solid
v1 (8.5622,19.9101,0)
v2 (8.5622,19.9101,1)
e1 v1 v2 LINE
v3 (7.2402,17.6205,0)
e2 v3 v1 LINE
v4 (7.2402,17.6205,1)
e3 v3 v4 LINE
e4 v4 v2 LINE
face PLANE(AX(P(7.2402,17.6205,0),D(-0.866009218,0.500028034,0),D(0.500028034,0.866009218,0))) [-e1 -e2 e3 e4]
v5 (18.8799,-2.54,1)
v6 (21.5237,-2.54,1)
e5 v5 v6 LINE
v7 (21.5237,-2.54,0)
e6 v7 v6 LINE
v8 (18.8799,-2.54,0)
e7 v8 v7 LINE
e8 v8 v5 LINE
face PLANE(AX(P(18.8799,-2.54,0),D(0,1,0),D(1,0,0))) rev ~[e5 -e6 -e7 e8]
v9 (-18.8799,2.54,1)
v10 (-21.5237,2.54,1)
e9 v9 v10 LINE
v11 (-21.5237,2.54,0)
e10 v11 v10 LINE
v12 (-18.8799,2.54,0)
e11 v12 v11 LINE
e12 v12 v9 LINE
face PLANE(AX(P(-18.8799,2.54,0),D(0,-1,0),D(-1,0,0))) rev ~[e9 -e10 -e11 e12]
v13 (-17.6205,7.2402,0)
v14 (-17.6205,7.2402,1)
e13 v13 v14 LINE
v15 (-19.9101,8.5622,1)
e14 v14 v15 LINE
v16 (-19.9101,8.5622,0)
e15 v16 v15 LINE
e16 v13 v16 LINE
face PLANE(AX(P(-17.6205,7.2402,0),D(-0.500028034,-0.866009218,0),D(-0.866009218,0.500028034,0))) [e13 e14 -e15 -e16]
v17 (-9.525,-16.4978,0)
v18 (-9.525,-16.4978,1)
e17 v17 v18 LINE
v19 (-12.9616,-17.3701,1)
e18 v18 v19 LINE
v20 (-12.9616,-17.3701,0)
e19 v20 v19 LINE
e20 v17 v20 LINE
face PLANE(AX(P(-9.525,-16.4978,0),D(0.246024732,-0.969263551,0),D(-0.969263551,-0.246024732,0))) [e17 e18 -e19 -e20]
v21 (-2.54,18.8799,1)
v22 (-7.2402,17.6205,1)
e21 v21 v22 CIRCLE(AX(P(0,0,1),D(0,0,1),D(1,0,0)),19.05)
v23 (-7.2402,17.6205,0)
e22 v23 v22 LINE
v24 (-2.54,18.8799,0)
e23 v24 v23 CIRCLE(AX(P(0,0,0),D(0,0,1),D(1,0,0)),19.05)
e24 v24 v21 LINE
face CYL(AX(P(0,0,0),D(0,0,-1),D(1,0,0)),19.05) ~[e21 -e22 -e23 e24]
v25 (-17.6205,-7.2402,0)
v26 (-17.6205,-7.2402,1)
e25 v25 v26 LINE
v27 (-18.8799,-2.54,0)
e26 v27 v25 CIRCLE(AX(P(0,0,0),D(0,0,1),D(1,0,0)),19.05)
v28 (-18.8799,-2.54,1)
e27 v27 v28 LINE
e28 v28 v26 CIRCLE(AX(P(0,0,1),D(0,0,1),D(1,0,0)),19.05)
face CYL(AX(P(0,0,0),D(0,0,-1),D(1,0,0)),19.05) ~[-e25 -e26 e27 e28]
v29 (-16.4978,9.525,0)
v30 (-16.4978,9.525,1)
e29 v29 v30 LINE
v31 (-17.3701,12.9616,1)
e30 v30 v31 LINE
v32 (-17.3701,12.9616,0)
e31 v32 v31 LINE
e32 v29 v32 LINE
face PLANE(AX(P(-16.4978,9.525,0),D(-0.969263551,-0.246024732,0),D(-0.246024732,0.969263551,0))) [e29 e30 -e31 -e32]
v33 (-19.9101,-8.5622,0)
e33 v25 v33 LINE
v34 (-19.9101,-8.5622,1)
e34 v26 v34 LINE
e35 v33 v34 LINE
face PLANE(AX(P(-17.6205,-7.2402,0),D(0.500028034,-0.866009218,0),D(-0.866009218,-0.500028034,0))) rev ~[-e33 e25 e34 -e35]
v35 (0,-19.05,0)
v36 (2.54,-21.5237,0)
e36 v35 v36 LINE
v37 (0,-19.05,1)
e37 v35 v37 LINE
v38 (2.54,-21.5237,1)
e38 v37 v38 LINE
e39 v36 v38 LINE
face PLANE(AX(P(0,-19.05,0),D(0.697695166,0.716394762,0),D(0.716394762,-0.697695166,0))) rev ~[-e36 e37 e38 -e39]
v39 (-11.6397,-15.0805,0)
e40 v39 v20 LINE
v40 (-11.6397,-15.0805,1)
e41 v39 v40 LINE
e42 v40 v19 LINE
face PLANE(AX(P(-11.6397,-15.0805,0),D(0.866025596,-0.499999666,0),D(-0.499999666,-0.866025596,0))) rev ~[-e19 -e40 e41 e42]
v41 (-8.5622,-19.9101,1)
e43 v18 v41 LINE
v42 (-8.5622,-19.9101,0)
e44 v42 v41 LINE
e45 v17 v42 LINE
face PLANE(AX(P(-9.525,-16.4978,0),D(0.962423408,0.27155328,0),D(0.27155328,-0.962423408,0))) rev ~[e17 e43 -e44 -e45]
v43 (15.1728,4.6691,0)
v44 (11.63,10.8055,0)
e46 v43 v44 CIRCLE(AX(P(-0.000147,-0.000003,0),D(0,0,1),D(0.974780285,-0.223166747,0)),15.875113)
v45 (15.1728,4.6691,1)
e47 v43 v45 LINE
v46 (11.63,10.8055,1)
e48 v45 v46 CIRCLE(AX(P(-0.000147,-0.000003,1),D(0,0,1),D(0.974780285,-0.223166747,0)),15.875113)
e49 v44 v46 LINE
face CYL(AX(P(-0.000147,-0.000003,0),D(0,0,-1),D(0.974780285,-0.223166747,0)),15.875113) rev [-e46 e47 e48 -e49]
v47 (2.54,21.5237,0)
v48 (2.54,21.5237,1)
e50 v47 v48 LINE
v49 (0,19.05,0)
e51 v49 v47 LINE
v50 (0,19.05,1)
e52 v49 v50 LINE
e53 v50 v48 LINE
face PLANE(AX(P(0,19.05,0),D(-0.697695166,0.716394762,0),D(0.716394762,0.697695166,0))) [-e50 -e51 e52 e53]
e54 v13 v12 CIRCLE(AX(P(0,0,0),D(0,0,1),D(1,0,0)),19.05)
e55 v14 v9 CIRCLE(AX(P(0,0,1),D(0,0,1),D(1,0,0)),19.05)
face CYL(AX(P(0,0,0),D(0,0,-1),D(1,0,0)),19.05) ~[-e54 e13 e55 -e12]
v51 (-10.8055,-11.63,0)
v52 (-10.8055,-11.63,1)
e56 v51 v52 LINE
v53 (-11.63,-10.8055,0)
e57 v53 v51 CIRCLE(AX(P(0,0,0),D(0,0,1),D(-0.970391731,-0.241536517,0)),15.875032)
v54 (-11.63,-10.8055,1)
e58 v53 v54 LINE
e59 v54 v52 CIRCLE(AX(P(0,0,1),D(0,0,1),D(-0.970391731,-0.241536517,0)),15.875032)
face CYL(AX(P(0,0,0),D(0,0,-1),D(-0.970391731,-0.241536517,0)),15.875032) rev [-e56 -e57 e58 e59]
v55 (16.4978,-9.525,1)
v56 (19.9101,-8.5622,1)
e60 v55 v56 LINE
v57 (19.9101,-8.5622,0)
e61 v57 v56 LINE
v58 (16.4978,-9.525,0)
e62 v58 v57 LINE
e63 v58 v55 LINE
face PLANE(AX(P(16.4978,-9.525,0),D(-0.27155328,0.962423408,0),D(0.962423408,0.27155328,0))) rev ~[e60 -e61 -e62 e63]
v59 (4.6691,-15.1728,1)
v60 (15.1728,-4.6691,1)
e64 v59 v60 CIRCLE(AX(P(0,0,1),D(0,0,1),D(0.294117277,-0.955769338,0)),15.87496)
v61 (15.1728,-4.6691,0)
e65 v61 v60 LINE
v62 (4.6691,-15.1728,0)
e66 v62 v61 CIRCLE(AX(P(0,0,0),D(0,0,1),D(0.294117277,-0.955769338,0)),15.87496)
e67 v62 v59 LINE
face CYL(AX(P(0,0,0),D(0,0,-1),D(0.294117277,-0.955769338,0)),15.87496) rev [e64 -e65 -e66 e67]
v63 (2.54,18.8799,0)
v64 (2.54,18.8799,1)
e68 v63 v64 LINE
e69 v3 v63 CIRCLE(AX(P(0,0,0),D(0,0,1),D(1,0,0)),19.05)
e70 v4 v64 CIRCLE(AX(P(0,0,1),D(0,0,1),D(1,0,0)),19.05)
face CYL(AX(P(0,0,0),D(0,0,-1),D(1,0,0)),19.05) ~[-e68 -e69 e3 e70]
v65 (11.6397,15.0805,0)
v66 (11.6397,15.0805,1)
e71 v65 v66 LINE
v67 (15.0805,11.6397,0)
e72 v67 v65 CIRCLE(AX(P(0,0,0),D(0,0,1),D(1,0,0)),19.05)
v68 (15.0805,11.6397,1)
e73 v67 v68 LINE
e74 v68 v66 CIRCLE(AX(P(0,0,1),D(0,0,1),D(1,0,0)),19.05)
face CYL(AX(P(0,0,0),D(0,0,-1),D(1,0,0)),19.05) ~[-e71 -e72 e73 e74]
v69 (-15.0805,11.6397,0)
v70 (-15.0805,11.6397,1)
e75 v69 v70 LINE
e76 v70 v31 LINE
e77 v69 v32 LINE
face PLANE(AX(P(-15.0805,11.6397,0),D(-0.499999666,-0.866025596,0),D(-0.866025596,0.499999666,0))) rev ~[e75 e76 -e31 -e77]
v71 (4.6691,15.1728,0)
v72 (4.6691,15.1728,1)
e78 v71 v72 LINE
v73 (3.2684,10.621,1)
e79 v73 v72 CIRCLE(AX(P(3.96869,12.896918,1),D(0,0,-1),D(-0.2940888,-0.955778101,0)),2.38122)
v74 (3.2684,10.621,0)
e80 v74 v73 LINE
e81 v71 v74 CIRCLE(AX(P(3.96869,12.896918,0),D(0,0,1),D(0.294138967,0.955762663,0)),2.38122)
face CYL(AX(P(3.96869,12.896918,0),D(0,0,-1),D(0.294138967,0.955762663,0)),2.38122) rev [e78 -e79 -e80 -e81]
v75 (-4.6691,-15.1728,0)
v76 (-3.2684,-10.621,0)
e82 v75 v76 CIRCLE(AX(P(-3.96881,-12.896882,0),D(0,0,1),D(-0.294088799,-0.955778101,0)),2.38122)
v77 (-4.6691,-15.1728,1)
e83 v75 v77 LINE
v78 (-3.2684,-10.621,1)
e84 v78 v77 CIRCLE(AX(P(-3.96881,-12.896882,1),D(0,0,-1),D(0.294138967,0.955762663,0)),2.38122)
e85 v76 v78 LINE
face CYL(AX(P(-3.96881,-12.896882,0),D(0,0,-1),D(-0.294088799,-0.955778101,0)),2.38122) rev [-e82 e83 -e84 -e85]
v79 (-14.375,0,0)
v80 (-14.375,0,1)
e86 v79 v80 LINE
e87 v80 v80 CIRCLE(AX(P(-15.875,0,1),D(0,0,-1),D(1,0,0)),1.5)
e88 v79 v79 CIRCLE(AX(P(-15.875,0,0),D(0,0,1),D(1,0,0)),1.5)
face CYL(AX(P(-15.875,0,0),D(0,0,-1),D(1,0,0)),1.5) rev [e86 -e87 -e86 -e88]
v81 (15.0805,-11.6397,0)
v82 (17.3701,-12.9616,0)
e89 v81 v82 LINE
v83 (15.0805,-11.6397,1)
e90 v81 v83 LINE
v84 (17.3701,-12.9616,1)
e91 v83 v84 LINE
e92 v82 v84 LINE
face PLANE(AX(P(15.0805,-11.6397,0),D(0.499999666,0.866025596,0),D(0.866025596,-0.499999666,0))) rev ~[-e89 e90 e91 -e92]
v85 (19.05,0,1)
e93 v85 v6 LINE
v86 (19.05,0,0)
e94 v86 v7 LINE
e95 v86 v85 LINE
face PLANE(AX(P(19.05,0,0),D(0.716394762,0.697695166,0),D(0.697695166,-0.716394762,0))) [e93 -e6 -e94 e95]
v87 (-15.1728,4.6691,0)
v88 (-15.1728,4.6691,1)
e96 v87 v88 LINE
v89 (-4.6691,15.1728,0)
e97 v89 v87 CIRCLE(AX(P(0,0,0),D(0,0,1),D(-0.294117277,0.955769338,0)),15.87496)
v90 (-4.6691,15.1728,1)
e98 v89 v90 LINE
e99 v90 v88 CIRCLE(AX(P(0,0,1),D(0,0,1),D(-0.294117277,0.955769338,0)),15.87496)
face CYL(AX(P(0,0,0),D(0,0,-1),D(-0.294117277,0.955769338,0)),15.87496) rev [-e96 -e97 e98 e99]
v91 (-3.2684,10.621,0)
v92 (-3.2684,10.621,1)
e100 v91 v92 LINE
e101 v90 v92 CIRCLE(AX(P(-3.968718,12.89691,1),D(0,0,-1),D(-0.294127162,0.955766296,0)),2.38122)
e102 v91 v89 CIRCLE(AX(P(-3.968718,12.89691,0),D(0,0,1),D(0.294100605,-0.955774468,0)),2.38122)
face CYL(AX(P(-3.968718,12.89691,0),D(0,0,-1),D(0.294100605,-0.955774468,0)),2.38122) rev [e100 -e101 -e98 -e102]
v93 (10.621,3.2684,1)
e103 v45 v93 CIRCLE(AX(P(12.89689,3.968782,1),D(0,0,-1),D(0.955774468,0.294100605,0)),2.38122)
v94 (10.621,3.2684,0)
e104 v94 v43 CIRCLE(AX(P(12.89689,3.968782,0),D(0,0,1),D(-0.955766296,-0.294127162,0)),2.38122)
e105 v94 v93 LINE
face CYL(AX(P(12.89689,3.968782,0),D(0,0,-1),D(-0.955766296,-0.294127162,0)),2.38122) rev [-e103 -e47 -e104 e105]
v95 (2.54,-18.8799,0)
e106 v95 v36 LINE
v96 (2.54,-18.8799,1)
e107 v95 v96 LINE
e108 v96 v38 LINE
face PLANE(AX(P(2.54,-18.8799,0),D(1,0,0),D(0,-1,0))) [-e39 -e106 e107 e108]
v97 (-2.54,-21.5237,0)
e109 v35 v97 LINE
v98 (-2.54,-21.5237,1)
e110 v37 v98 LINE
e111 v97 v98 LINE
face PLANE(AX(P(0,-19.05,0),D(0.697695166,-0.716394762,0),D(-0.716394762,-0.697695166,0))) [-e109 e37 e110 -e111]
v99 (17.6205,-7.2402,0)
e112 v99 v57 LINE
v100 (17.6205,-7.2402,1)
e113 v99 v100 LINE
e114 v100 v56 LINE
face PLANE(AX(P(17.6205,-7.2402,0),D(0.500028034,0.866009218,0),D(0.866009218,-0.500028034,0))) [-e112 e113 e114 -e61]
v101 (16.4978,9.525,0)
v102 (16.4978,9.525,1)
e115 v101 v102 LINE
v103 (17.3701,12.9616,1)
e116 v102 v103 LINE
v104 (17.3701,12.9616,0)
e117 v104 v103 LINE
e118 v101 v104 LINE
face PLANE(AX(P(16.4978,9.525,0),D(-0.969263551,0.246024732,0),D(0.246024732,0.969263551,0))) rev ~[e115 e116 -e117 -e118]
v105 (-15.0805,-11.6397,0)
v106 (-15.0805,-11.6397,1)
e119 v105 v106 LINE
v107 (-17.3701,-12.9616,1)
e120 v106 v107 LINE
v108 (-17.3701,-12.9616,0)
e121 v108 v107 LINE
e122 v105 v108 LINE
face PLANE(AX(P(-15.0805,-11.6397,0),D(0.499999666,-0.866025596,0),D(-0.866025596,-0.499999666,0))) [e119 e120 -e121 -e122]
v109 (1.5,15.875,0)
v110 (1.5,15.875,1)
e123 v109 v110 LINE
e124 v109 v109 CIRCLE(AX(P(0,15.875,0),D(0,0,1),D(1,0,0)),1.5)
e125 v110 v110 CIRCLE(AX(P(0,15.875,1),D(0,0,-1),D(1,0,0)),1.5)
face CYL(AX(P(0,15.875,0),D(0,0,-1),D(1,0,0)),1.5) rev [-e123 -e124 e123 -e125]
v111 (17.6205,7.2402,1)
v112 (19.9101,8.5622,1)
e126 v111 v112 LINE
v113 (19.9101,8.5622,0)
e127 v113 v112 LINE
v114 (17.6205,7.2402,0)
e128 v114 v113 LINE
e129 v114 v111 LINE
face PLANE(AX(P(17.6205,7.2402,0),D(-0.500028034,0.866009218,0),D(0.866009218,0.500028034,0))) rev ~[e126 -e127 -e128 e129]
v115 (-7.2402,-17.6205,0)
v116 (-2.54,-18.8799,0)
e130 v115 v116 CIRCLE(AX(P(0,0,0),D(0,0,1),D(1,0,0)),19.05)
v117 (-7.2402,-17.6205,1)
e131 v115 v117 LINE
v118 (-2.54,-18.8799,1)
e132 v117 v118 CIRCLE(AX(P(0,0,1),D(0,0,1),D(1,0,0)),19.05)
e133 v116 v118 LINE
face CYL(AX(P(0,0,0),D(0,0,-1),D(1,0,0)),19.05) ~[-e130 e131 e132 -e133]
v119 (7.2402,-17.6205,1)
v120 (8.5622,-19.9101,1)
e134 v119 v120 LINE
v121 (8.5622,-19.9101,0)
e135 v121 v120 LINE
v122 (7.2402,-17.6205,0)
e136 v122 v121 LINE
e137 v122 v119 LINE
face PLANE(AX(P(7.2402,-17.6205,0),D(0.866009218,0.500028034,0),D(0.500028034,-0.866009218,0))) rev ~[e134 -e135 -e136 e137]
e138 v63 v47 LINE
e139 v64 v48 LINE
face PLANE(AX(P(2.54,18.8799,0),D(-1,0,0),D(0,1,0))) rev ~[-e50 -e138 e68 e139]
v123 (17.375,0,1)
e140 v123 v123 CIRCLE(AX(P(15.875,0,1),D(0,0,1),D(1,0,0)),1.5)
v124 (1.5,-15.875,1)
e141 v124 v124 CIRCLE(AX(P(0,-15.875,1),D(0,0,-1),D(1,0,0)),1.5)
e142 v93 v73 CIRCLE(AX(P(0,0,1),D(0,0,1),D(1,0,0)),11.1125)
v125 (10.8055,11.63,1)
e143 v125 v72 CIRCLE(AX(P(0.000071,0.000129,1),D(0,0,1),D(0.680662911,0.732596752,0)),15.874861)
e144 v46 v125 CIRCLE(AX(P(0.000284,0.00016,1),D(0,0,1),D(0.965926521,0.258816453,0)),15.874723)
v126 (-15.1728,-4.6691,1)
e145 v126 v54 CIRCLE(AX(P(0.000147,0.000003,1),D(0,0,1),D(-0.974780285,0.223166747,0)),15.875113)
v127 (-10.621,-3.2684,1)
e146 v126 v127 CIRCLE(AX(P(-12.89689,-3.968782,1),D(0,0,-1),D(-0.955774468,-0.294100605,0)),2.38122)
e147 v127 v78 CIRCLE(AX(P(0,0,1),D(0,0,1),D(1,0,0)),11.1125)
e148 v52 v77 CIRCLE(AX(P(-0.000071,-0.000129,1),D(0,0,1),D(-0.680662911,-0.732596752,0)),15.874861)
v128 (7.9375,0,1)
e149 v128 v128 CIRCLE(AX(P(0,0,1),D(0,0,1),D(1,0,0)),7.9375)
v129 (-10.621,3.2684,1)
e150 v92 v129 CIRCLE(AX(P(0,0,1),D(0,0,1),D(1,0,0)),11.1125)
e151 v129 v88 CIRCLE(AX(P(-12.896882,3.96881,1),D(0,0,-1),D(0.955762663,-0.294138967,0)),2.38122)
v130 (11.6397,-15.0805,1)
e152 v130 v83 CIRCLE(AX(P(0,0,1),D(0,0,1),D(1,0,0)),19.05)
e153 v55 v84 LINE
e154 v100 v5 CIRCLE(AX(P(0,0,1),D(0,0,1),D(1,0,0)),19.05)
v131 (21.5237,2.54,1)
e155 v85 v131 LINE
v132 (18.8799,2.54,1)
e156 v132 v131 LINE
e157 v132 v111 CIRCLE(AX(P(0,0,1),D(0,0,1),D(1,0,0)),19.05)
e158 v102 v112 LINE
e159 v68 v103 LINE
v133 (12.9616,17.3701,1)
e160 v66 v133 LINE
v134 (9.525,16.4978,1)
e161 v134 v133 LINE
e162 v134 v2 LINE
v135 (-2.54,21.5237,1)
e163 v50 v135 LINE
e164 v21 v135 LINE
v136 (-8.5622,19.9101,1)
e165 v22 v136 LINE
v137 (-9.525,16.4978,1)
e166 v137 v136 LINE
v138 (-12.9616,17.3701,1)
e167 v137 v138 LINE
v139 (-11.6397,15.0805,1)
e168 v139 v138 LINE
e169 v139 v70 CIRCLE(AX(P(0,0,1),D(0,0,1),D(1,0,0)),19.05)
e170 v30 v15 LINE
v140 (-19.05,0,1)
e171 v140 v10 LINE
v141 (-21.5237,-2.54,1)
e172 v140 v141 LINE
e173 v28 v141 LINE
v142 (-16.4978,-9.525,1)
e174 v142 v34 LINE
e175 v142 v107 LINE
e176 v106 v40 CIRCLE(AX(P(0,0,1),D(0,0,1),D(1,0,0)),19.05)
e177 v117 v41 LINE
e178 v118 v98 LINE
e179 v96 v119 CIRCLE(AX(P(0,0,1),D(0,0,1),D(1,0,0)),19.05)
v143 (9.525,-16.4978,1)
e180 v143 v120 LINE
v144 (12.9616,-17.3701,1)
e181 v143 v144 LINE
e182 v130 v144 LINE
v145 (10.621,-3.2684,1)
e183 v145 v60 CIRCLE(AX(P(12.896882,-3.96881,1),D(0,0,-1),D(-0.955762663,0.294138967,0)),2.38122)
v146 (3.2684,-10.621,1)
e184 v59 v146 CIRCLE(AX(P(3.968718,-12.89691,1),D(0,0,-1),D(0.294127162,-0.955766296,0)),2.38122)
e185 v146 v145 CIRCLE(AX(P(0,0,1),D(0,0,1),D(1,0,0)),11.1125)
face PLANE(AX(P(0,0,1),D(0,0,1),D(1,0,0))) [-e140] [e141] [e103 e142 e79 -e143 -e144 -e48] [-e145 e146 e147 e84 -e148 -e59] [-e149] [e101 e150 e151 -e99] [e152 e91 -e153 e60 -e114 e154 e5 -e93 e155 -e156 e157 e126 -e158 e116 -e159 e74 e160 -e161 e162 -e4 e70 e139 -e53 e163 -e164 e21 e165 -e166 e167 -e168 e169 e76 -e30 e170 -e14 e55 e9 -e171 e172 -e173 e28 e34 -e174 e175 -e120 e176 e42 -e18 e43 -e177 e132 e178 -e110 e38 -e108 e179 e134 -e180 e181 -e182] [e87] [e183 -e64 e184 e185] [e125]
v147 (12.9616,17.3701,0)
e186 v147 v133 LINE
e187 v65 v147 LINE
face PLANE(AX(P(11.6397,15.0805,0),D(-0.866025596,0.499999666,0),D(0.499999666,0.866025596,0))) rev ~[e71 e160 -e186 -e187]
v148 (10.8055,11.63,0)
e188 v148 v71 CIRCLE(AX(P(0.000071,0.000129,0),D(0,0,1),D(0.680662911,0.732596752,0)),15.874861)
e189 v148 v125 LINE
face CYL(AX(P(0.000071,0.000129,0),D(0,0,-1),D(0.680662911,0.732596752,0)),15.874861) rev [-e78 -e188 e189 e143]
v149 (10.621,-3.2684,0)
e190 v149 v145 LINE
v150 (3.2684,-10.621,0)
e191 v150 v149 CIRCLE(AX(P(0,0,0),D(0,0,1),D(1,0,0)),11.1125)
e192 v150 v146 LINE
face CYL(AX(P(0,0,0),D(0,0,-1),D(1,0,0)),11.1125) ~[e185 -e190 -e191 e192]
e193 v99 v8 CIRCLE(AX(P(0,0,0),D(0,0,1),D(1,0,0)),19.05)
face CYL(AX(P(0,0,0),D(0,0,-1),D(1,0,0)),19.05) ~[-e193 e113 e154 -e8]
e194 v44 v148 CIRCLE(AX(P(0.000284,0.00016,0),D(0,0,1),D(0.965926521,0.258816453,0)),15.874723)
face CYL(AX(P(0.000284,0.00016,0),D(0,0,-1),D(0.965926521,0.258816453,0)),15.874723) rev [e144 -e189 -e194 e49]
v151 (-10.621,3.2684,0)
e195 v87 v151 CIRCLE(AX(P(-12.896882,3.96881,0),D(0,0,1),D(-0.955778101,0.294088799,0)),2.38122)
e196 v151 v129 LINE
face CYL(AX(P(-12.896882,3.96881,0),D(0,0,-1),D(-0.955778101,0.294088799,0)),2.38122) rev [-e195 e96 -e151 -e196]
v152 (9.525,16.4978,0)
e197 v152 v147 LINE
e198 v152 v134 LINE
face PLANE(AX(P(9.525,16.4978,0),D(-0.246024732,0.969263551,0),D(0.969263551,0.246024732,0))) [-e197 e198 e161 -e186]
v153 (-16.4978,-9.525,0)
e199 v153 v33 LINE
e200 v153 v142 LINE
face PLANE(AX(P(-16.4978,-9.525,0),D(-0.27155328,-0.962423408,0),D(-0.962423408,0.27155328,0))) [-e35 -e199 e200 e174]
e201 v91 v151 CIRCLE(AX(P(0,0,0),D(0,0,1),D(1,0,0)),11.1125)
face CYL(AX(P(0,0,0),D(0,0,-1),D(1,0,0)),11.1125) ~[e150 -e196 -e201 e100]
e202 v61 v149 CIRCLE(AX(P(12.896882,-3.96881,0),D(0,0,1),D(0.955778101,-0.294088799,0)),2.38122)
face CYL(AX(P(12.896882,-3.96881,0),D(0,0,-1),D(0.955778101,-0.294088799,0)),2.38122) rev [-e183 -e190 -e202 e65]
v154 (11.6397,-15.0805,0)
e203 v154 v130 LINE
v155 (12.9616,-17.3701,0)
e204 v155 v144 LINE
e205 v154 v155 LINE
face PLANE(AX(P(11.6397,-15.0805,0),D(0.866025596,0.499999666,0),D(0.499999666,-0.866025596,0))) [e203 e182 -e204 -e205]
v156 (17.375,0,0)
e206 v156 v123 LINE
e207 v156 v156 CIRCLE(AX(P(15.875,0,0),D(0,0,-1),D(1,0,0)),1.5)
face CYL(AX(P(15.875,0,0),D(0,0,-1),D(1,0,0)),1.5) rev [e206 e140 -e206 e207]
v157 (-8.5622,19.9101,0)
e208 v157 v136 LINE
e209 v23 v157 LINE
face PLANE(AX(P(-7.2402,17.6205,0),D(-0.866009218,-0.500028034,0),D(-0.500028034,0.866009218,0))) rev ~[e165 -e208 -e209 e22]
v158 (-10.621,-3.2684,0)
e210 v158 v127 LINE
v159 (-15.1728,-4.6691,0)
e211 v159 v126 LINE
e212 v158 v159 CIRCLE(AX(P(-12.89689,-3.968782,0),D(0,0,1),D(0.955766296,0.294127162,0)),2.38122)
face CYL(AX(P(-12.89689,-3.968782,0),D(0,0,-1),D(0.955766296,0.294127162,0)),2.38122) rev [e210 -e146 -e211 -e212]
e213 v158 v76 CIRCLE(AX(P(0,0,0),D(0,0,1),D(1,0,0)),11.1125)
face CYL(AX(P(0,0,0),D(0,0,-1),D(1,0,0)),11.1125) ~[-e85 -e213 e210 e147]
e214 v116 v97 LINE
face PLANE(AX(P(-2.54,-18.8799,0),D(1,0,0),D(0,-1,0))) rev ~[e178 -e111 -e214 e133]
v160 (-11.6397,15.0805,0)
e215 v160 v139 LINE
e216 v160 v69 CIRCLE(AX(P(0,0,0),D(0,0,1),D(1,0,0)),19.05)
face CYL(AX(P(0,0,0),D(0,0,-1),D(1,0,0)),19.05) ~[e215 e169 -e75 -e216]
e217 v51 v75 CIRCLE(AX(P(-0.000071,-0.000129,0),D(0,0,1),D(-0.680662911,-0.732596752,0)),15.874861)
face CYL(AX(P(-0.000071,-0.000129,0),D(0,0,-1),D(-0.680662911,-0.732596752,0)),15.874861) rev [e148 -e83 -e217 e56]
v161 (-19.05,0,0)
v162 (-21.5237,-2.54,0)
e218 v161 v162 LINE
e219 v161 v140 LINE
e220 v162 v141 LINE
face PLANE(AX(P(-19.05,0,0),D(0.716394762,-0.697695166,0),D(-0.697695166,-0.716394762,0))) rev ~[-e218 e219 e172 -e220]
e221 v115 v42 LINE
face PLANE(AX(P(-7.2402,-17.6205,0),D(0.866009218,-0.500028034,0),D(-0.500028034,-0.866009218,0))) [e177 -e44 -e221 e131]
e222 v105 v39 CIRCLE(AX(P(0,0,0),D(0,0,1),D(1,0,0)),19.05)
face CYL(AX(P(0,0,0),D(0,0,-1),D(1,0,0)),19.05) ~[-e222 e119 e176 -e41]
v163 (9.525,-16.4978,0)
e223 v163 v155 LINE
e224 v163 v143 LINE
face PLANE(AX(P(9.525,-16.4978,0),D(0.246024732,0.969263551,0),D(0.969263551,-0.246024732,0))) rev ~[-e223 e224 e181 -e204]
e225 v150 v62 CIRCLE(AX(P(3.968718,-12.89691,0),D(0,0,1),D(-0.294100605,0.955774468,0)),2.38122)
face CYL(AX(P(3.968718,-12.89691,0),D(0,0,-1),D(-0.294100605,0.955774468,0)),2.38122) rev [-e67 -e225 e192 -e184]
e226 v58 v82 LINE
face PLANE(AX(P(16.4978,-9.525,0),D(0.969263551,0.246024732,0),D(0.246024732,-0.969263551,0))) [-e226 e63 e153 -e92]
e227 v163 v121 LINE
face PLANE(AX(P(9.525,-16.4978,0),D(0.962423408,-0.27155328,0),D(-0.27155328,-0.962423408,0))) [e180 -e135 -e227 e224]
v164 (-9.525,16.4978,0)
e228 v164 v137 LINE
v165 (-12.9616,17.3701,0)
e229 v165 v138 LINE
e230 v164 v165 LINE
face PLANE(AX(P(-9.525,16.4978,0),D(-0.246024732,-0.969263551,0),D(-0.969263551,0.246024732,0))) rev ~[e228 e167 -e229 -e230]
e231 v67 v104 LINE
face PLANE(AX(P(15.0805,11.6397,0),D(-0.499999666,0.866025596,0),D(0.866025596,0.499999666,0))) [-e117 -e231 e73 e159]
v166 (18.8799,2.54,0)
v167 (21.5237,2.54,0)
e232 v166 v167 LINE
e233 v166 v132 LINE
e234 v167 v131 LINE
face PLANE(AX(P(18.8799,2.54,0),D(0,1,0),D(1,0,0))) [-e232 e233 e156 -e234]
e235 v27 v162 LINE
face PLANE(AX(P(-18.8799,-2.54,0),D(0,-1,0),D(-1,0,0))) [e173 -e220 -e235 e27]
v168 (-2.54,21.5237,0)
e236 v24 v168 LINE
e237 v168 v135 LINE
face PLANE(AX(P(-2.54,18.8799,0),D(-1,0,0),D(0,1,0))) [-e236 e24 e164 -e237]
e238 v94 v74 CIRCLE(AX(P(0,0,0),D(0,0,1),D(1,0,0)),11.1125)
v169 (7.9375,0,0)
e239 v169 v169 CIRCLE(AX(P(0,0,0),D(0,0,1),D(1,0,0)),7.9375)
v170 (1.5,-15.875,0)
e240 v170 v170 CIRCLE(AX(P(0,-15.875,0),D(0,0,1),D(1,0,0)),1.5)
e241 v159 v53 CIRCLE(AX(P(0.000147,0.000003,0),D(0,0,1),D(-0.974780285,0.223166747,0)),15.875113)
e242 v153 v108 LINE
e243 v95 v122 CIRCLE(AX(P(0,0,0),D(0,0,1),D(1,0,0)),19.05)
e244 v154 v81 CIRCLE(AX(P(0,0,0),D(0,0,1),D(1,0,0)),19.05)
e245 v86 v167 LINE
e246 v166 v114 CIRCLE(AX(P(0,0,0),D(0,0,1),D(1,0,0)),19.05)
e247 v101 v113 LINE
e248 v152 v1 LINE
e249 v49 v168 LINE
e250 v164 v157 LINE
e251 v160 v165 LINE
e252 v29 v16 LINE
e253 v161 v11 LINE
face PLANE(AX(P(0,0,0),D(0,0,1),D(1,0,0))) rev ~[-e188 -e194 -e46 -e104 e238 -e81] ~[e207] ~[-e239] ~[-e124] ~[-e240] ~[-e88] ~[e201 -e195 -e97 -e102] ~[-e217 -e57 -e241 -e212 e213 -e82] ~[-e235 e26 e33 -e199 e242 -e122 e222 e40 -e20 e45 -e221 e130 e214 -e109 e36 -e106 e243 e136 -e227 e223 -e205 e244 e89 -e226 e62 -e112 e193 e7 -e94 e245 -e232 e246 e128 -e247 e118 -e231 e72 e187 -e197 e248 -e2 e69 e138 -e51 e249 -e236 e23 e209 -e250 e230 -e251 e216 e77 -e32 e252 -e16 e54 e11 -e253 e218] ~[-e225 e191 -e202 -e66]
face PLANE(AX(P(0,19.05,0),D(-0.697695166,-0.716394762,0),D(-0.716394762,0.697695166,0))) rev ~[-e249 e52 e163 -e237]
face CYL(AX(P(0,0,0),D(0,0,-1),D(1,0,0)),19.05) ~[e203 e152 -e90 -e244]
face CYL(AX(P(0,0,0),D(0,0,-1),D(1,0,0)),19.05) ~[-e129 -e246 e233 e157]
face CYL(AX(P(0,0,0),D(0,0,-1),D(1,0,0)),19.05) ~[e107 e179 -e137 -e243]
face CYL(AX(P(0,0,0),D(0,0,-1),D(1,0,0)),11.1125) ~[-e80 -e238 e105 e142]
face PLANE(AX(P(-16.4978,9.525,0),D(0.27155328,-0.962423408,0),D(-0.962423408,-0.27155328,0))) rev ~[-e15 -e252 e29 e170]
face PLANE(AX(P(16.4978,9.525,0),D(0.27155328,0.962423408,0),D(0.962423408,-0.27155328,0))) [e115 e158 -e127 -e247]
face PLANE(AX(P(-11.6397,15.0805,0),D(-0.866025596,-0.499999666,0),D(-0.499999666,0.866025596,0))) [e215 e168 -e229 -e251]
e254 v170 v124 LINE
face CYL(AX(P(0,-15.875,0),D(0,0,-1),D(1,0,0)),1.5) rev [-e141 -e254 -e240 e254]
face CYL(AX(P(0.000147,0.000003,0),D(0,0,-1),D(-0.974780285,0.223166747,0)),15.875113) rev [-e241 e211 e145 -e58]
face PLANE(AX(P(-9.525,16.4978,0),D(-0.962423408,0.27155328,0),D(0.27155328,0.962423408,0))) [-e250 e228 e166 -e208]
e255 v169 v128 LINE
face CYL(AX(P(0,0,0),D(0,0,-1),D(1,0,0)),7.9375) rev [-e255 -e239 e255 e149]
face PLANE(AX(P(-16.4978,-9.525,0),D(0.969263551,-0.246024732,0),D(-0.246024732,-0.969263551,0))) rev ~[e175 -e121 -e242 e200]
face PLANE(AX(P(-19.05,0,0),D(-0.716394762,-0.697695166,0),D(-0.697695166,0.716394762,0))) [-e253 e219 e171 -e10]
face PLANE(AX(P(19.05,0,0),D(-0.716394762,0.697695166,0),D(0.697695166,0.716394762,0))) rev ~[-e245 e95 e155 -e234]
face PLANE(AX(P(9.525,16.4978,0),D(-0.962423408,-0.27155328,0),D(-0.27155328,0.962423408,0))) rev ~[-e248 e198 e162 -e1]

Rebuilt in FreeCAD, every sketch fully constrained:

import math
import FreeCAD as App
import Part
import Sketcher
from FreeCAD import Vector
Q = App.Units.Quantity

doc = App.newDocument("Part")
body = doc.addObject("PartDesign::Body", "Body")

sketch1 = body.newObject("Sketcher::SketchObject", "Sketch")
sketch1.AttachmentSupport = (doc.getObject("XY_Plane"), [""])
sketch1.MapMode = "FlatFace"
sketch1.addGeometry([
    Part.LineSegment(Vector(21.5237, -2.54, 0), Vector(19.05, 0, 0)),
    Part.LineSegment(Vector(19.05, 0, 0), Vector(21.5237, 2.54, 0)),
    Part.LineSegment(Vector(21.5237, 2.54, 0), Vector(18.8799, 2.54, 0)),
    Part.ArcOfCircle(Part.Circle(Vector(0, 0, 0), Vector(0, 0, 1), 19.05), math.radians(7.662259), math.radians(22.337584)),
    Part.LineSegment(Vector(17.6205, 7.2402, 0), Vector(19.9101, 8.5622, 0)),
    Part.LineSegment(Vector(19.9101, 8.5622, 0), Vector(16.4978, 9.525, 0)),
    Part.LineSegment(Vector(16.4978, 9.525, 0), Vector(17.3701, 12.9616, 0)),
    Part.LineSegment(Vector(17.3701, 12.9616, 0), Vector(15.0805, 11.6397, 0)),
    Part.ArcOfCircle(Part.Circle(Vector(0, 0, 0), Vector(0, 0, 1), 19.05), math.radians(37.662317), math.radians(52.337683)),
    Part.LineSegment(Vector(11.6397, 15.0805, 0), Vector(12.9616, 17.3701, 0)),
    Part.LineSegment(Vector(12.9616, 17.3701, 0), Vector(9.525, 16.4978, 0)),
    Part.LineSegment(Vector(9.525, 16.4978, 0), Vector(8.5622, 19.9101, 0)),
    Part.LineSegment(Vector(8.5622, 19.9101, 0), Vector(7.2402, 17.6205, 0)),
    Part.ArcOfCircle(Part.Circle(Vector(0, 0, 0), Vector(0, 0, 1), 19.05), math.radians(67.662416), math.radians(82.337741)),
    Part.LineSegment(Vector(2.54, 18.8799, 0), Vector(2.54, 21.5237, 0)),
    Part.LineSegment(Vector(2.54, 21.5237, 0), Vector(0, 19.05, 0)),
    Part.LineSegment(Vector(0, 19.05, 0), Vector(-2.54, 21.5237, 0)),
    Part.LineSegment(Vector(-2.54, 21.5237, 0), Vector(-2.54, 18.8799, 0)),
    Part.ArcOfCircle(Part.Circle(Vector(0, 0, 0), Vector(0, 0, 1), 19.05), math.radians(97.662259), math.radians(112.337584)),
    Part.LineSegment(Vector(-7.2402, 17.6205, 0), Vector(-8.5622, 19.9101, 0)),
    Part.LineSegment(Vector(-8.5622, 19.9101, 0), Vector(-9.525, 16.4978, 0)),
    Part.LineSegment(Vector(-9.525, 16.4978, 0), Vector(-12.9616, 17.3701, 0)),
    Part.LineSegment(Vector(-12.9616, 17.3701, 0), Vector(-11.6397, 15.0805, 0)),
    Part.ArcOfCircle(Part.Circle(Vector(0, 0, 0), Vector(0, 0, 1), 19.05), math.radians(127.662317), math.radians(142.337683)),
    Part.LineSegment(Vector(-15.0805, 11.6397, 0), Vector(-17.3701, 12.9616, 0)),
    Part.LineSegment(Vector(-17.3701, 12.9616, 0), Vector(-16.4978, 9.525, 0)),
    Part.LineSegment(Vector(-16.4978, 9.525, 0), Vector(-19.9101, 8.5622, 0)),
    Part.LineSegment(Vector(-19.9101, 8.5622, 0), Vector(-17.6205, 7.2402, 0)),
    Part.ArcOfCircle(Part.Circle(Vector(0, 0, 0), Vector(0, 0, 1), 19.05), math.radians(157.662416), math.radians(172.337741)),
    Part.LineSegment(Vector(-18.8799, 2.54, 0), Vector(-21.5237, 2.54, 0)),
    Part.LineSegment(Vector(-21.5237, 2.54, 0), Vector(-19.05, 0, 0)),
    Part.LineSegment(Vector(-19.05, 0, 0), Vector(-21.5237, -2.54, 0)),
    Part.LineSegment(Vector(-21.5237, -2.54, 0), Vector(-18.8799, -2.54, 0)),
    Part.ArcOfCircle(Part.Circle(Vector(0, 0, 0), Vector(0, 0, 1), 19.05), math.radians(-172.337741), math.radians(-157.662416)),
    Part.LineSegment(Vector(-17.6205, -7.2402, 0), Vector(-19.9101, -8.5622, 0)),
    Part.LineSegment(Vector(-19.9101, -8.5622, 0), Vector(-16.4978, -9.525, 0)),
    Part.LineSegment(Vector(-16.4978, -9.525, 0), Vector(-17.3701, -12.9616, 0)),
    Part.LineSegment(Vector(-17.3701, -12.9616, 0), Vector(-15.0805, -11.6397, 0)),
    Part.ArcOfCircle(Part.Circle(Vector(0, 0, 0), Vector(0, 0, 1), 19.05), math.radians(-142.337683), math.radians(-127.662317)),
    Part.LineSegment(Vector(-11.6397, -15.0805, 0), Vector(-12.9616, -17.3701, 0)),
    Part.LineSegment(Vector(-12.9616, -17.3701, 0), Vector(-9.525, -16.4978, 0)),
    Part.LineSegment(Vector(-9.525, -16.4978, 0), Vector(-8.5622, -19.9101, 0)),
    Part.LineSegment(Vector(-8.5622, -19.9101, 0), Vector(-7.2402, -17.6205, 0)),
    Part.ArcOfCircle(Part.Circle(Vector(0, 0, 0), Vector(0, 0, 1), 19.05), math.radians(-112.337584), math.radians(-97.662259)),
    Part.LineSegment(Vector(-2.54, -18.8799, 0), Vector(-2.54, -21.5237, 0)),
    Part.LineSegment(Vector(-2.54, -21.5237, 0), Vector(0, -19.05, 0)),
    Part.LineSegment(Vector(0, -19.05, 0), Vector(2.54, -21.5237, 0)),
    Part.LineSegment(Vector(2.54, -21.5237, 0), Vector(2.54, -18.8799, 0)),
    Part.ArcOfCircle(Part.Circle(Vector(0, 0, 0), Vector(0, 0, 1), 19.05), math.radians(-82.337741), math.radians(-67.662416)),
    Part.LineSegment(Vector(7.2402, -17.6205, 0), Vector(8.5622, -19.9101, 0)),
    Part.LineSegment(Vector(8.5622, -19.9101, 0), Vector(9.525, -16.4978, 0)),
    Part.LineSegment(Vector(9.525, -16.4978, 0), Vector(12.9616, -17.3701, 0)),
    Part.LineSegment(Vector(12.9616, -17.3701, 0), Vector(11.6397, -15.0805, 0)),
    Part.ArcOfCircle(Part.Circle(Vector(0, 0, 0), Vector(0, 0, 1), 19.05), math.radians(-52.337683), math.radians(-37.662317)),
    Part.LineSegment(Vector(15.0805, -11.6397, 0), Vector(17.3701, -12.9616, 0)),
    Part.LineSegment(Vector(17.3701, -12.9616, 0), Vector(16.4978, -9.525, 0)),
    Part.LineSegment(Vector(16.4978, -9.525, 0), Vector(19.9101, -8.5622, 0)),
    Part.LineSegment(Vector(19.9101, -8.5622, 0), Vector(17.6205, -7.2402, 0)),
    Part.ArcOfCircle(Part.Circle(Vector(0, 0, 0), Vector(0, 0, 1), 19.05), math.radians(-22.337584), math.radians(-7.662259)),
    Part.LineSegment(Vector(18.8799, -2.54, 0), Vector(21.5237, -2.54, 0)),
    Part.Circle(Vector(15.875, 0, 0), Vector(0, 0, 1), 1.5),
    Part.ArcOfCircle(Part.Circle(Vector(3.9687, -12.8969, 0), Vector(0, 0, 1), 2.381206), math.radians(107.10326), math.radians(287.105559)),
    Part.ArcOfCircle(Part.Circle(Vector(0, 0, 0), Vector(0, 0, 1), 11.1125), math.radians(-72.8953), math.radians(-17.1047)),
    Part.ArcOfCircle(Part.Circle(Vector(12.8969, -3.9688, 0), Vector(0, 0, 1), 2.381206), math.radians(-17.10326), math.radians(162.894441)),
    Part.ArcOfCircle(Part.Circle(Vector(0, 0, 0), Vector(0, 0, 1), 15.87496), math.radians(-72.895387), math.radians(-17.104613)),
    Part.ArcOfCircle(Part.Circle(Vector(0, 0, 0), Vector(0, 0, 1), 15.875039), math.radians(17.104613), math.radians(42.895339)),
    Part.ArcOfCircle(Part.Circle(Vector(12.8969, 3.9688, 0), Vector(0, 0, 1), 2.381235), math.radians(-162.894441), math.radians(17.10326)),
    Part.ArcOfCircle(Part.Circle(Vector(0, 0, 0), Vector(0, 0, 1), 11.1125), math.radians(17.1047), math.radians(72.8953)),
    Part.ArcOfCircle(Part.Circle(Vector(3.9687, 12.8969, 0), Vector(0, 0, 1), 2.381235), math.radians(72.894441), math.radians(252.89674)),
    Part.ArcOfCircle(Part.Circle(Vector(0, 0, 0), Vector(0, 0, 1), 15.87496), math.radians(47.104661), math.radians(72.895387)),
    Part.ArcOfCircle(Part.Circle(Vector(0, 0, 0), Vector(0, 0, 1), 15.87496), math.radians(42.895339), math.radians(47.104661)),
    Part.Circle(Vector(0, -15.875, 0), Vector(0, 0, 1), 1.5),
    Part.Circle(Vector(0, 0, 0), Vector(0, 0, 1), 7.9375),
    Part.ArcOfCircle(Part.Circle(Vector(0, 0, 0), Vector(0, 0, 1), 11.1125), math.radians(-162.8953), math.radians(-107.1047)),
    Part.ArcOfCircle(Part.Circle(Vector(-3.9688, -12.8969, 0), Vector(0, 0, 1), 2.381206), math.radians(-107.10326), math.radians(72.894441)),
    Part.ArcOfCircle(Part.Circle(Vector(0, 0, 0), Vector(0, 0, 1), 15.87496), math.radians(-132.895339), math.radians(-107.104613)),
    Part.ArcOfCircle(Part.Circle(Vector(0, 0, 0), Vector(0, 0, 1), 15.875032), math.radians(-137.104661), math.radians(-132.895339)),
    Part.ArcOfCircle(Part.Circle(Vector(0, 0, 0), Vector(0, 0, 1), 15.875039), math.radians(-162.895387), math.radians(-137.104661)),
    Part.ArcOfCircle(Part.Circle(Vector(-12.8969, -3.9688, 0), Vector(0, 0, 1), 2.381235), math.radians(17.105559), math.radians(197.10326)),
    Part.ArcOfCircle(Part.Circle(Vector(0, 0, 0), Vector(0, 0, 1), 11.1125), math.radians(107.1047), math.radians(162.8953)),
    Part.ArcOfCircle(Part.Circle(Vector(-12.8969, 3.9688, 0), Vector(0, 0, 1), 2.381206), math.radians(162.89674), math.radians(342.894441)),
    Part.ArcOfCircle(Part.Circle(Vector(0, 0, 0), Vector(0, 0, 1), 15.87496), math.radians(107.104613), math.radians(162.895387)),
    Part.ArcOfCircle(Part.Circle(Vector(-3.9687, 12.8969, 0), Vector(0, 0, 1), 2.381206), math.radians(-72.89674), math.radians(107.105559)),
    Part.Circle(Vector(0, 15.875, 0), Vector(0, 0, 1), 1.5),
    Part.Circle(Vector(-15.875, 0, 0), Vector(0, 0, 1), 1.5),
], False)
sketch1.addConstraint([
    Sketcher.Constraint("Coincident", 0, 2, 1, 1),
    Sketcher.Constraint("Coincident", 1, 2, 2, 1),
    Sketcher.Constraint("Coincident", 2, 2, 3, 1),
    Sketcher.Constraint("Coincident", 3, 2, 4, 1),
    Sketcher.Constraint("Coincident", 4, 2, 5, 1),
    Sketcher.Constraint("Coincident", 5, 2, 6, 1),
    Sketcher.Constraint("Coincident", 6, 2, 7, 1),
    Sketcher.Constraint("Coincident", 7, 2, 8, 1),
    Sketcher.Constraint("Coincident", 8, 2, 9, 1),
    Sketcher.Constraint("Coincident", 9, 2, 10, 1),
    Sketcher.Constraint("Coincident", 10, 2, 11, 1),
    Sketcher.Constraint("Coincident", 11, 2, 12, 1),
    Sketcher.Constraint("Coincident", 12, 2, 13, 1),
    Sketcher.Constraint("Coincident", 13, 2, 14, 1),
    Sketcher.Constraint("Coincident", 14, 2, 15, 1),
    Sketcher.Constraint("Coincident", 15, 2, 16, 1),
    Sketcher.Constraint("Coincident", 16, 2, 17, 1),
    Sketcher.Constraint("Coincident", 17, 2, 18, 1),
    Sketcher.Constraint("Coincident", 18, 2, 19, 1),
    Sketcher.Constraint("Coincident", 19, 2, 20, 1),
    Sketcher.Constraint("Coincident", 20, 2, 21, 1),
    Sketcher.Constraint("Coincident", 21, 2, 22, 1),
    Sketcher.Constraint("Coincident", 22, 2, 23, 1),
    Sketcher.Constraint("Coincident", 23, 2, 24, 1),
    Sketcher.Constraint("Coincident", 24, 2, 25, 1),
    Sketcher.Constraint("Coincident", 25, 2, 26, 1),
    Sketcher.Constraint("Coincident", 26, 2, 27, 1),
    Sketcher.Constraint("Coincident", 27, 2, 28, 1),
    Sketcher.Constraint("Coincident", 28, 2, 29, 1),
    Sketcher.Constraint("Coincident", 29, 2, 30, 1),
    Sketcher.Constraint("Coincident", 30, 2, 31, 1),
    Sketcher.Constraint("Coincident", 31, 2, 32, 1),
    Sketcher.Constraint("Coincident", 32, 2, 33, 1),
    Sketcher.Constraint("Coincident", 33, 2, 34, 1),
    Sketcher.Constraint("Coincident", 34, 2, 35, 1),
    Sketcher.Constraint("Coincident", 35, 2, 36, 1),
    Sketcher.Constraint("Coincident", 36, 2, 37, 1),
    Sketcher.Constraint("Coincident", 37, 2, 38, 1),
    Sketcher.Constraint("Coincident", 38, 2, 39, 1),
    Sketcher.Constraint("Coincident", 39, 2, 40, 1),
    Sketcher.Constraint("Coincident", 40, 2, 41, 1),
    Sketcher.Constraint("Coincident", 41, 2, 42, 1),
    Sketcher.Constraint("Coincident", 42, 2, 43, 1),
    Sketcher.Constraint("Coincident", 43, 2, 44, 1),
    Sketcher.Constraint("Coincident", 44, 2, 45, 1),
    Sketcher.Constraint("Coincident", 45, 2, 46, 1),
    Sketcher.Constraint("Coincident", 46, 2, 47, 1),
    Sketcher.Constraint("Coincident", 47, 2, 48, 1),
    Sketcher.Constraint("Coincident", 48, 2, 49, 1),
    Sketcher.Constraint("Coincident", 49, 2, 50, 1),
    Sketcher.Constraint("Coincident", 50, 2, 51, 1),
    Sketcher.Constraint("Coincident", 51, 2, 52, 1),
    Sketcher.Constraint("Coincident", 52, 2, 53, 1),
    Sketcher.Constraint("Coincident", 53, 2, 54, 1),
    Sketcher.Constraint("Coincident", 54, 2, 55, 1),
    Sketcher.Constraint("Coincident", 55, 2, 56, 1),
    Sketcher.Constraint("Coincident", 56, 2, 57, 1),
    Sketcher.Constraint("Coincident", 57, 2, 58, 1),
    Sketcher.Constraint("Coincident", 58, 2, 59, 1),
    Sketcher.Constraint("Coincident", 59, 2, 0, 1),
    Sketcher.Constraint("Tangent", 61, 1, 62, 1),
    Sketcher.Constraint("Tangent", 62, 2, 63, 2),
    Sketcher.Constraint("Tangent", 63, 1, 64, 2),
    Sketcher.Constraint("Tangent", 64, 1, 61, 2),
    Sketcher.Constraint("Tangent", 65, 1, 66, 2),
    Sketcher.Constraint("Tangent", 66, 1, 67, 1),
    Sketcher.Constraint("Tangent", 67, 2, 68, 2),
    Sketcher.Constraint("Tangent", 68, 1, 69, 2),
    Sketcher.Constraint("Tangent", 69, 1, 70, 2),
    Sketcher.Constraint("Tangent", 70, 1, 65, 2),
    Sketcher.Constraint("Tangent", 73, 2, 74, 2),
    Sketcher.Constraint("Tangent", 74, 1, 75, 2),
    Sketcher.Constraint("Tangent", 75, 1, 76, 2),
    Sketcher.Constraint("Tangent", 76, 1, 77, 2),
    Sketcher.Constraint("Tangent", 77, 1, 78, 2),
    Sketcher.Constraint("Tangent", 78, 1, 73, 1),
    Sketcher.Constraint("Tangent", 79, 2, 80, 2),
    Sketcher.Constraint("Tangent", 80, 1, 81, 2),
    Sketcher.Constraint("Tangent", 81, 1, 82, 2),
    Sketcher.Constraint("Tangent", 82, 1, 79, 1),
    Sketcher.Constraint("Horizontal", 2),
    Sketcher.Constraint("Vertical", 14),
    Sketcher.Constraint("Vertical", 17),
    Sketcher.Constraint("Horizontal", 29),
    Sketcher.Constraint("Horizontal", 32),
    Sketcher.Constraint("Vertical", 44),
    Sketcher.Constraint("Vertical", 47),
    Sketcher.Constraint("Horizontal", 59),
    Sketcher.Constraint("Coincident", 3, 3, -1, 1),
    Sketcher.Constraint("Coincident", 8, 3, -1, 1),
    Sketcher.Constraint("Coincident", 13, 3, -1, 1),
    Sketcher.Constraint("Coincident", 18, 3, -1, 1),
    Sketcher.Constraint("Coincident", 23, 3, -1, 1),
    Sketcher.Constraint("Coincident", 28, 3, -1, 1),
    Sketcher.Constraint("Coincident", 33, 3, -1, 1),
    Sketcher.Constraint("Coincident", 38, 3, -1, 1),
    Sketcher.Constraint("Coincident", 43, 3, -1, 1),
    Sketcher.Constraint("Coincident", 48, 3, -1, 1),
    Sketcher.Constraint("Coincident", 53, 3, -1, 1),
    Sketcher.Constraint("Coincident", 58, 3, -1, 1),
    Sketcher.Constraint("Coincident", 62, 3, -1, 1),
    Sketcher.Constraint("Coincident", 64, 3, -1, 1),
    Sketcher.Constraint("Coincident", 65, 3, -1, 1),
    Sketcher.Constraint("Coincident", 67, 3, -1, 1),
    Sketcher.Constraint("Coincident", 69, 3, -1, 1),
    Sketcher.Constraint("Coincident", 72, 3, -1, 1),
    Sketcher.Constraint("Coincident", 73, 3, -1, 1),
    Sketcher.Constraint("Coincident", 75, 3, -1, 1),
    Sketcher.Constraint("Coincident", 77, 3, -1, 1),
    Sketcher.Constraint("Coincident", 79, 3, -1, 1),
    Sketcher.Constraint("Coincident", 81, 3, -1, 1),
    Sketcher.Constraint("Equal", 3, 8),
    Sketcher.Constraint("Equal", 8, 13),
    Sketcher.Constraint("Equal", 13, 18),
    Sketcher.Constraint("Equal", 18, 23),
    Sketcher.Constraint("Equal", 23, 28),
    Sketcher.Constraint("Equal", 28, 33),
    Sketcher.Constraint("Equal", 33, 38),
    Sketcher.Constraint("Equal", 38, 43),
    Sketcher.Constraint("Equal", 43, 48),
    Sketcher.Constraint("Equal", 48, 53),
    Sketcher.Constraint("Equal", 53, 58),
    Sketcher.Constraint("Equal", 64, 65),
    Sketcher.Constraint("Equal", 63, 66),
    Sketcher.Constraint("Equal", 60, 71),
    Sketcher.Constraint("Equal", 67, 73),
    Sketcher.Constraint("Equal", 68, 74),
    Sketcher.Constraint("Equal", 73, 79),
    Sketcher.Constraint("Equal", 78, 80),
    Sketcher.Constraint("Equal", 71, 83),
    Sketcher.Constraint("Equal", 83, 84),
    Sketcher.Constraint("Symmetric", 71, 3, 83, 3, -1, 1),
    Sketcher.Constraint("Symmetric", 60, 3, 84, 3, -1, 1),
    Sketcher.Constraint("Symmetric", 0, 2, 30, 2, -1, 1),
    Sketcher.Constraint("Symmetric", 1, 2, 31, 2, -1, 1),
    Sketcher.Constraint("Symmetric", 4, 2, 34, 2, -1, 1),
    Sketcher.Constraint("Symmetric", 5, 2, 35, 2, -1, 1),
    Sketcher.Constraint("Symmetric", 6, 2, 36, 2, -1, 1),
    Sketcher.Constraint("Symmetric", 9, 2, 39, 2, -1, 1),
    Sketcher.Constraint("Symmetric", 10, 2, 40, 2, -1, 1),
    Sketcher.Constraint("Symmetric", 11, 2, 41, 2, -1, 1),
    Sketcher.Constraint("Symmetric", 14, 2, 44, 2, -1, 1),
    Sketcher.Constraint("Symmetric", 15, 2, 45, 2, -1, 1),
    Sketcher.Constraint("Symmetric", 16, 2, 46, 2, -1, 1),
    Sketcher.Constraint("Symmetric", 19, 2, 49, 2, -1, 1),
    Sketcher.Constraint("Symmetric", 20, 2, 50, 2, -1, 1),
    Sketcher.Constraint("Symmetric", 21, 2, 51, 2, -1, 1),
    Sketcher.Constraint("Symmetric", 24, 2, 54, 2, -1, 1),
    Sketcher.Constraint("Symmetric", 25, 2, 55, 2, -1, 1),
    Sketcher.Constraint("Symmetric", 26, 2, 56, 2, -1, 1),
    Sketcher.Constraint("Symmetric", 29, 2, 59, 2, -1, 1),
    Sketcher.Constraint("Symmetric", 14, 2, 16, 2, -2),
    Sketcher.Constraint("Symmetric", 11, 2, 19, 2, -2),
    Sketcher.Constraint("Symmetric", 10, 2, 20, 2, -2),
    Sketcher.Constraint("Symmetric", 9, 2, 21, 2, -2),
    Sketcher.Constraint("Symmetric", 6, 2, 24, 2, -2),
    Sketcher.Constraint("Symmetric", 5, 2, 25, 2, -2),
    Sketcher.Constraint("Symmetric", 4, 2, 26, 2, -2),
    Sketcher.Constraint("Symmetric", 1, 2, 29, 2, -2),
    Sketcher.Constraint("PointOnObject", 60, 3, -1),
    Sketcher.Constraint("PointOnObject", 71, 3, -2),
    Sketcher.Constraint("PointOnObject", 0, 2, -1),
    Sketcher.Constraint("PointOnObject", 15, 2, -2),
    Sketcher.Constraint("Parallel", 4, 7),
    Sketcher.Constraint("Parallel", 9, 12),
    Sketcher.Constraint("Perpendicular", 0, 15),
    Sketcher.Constraint("Perpendicular", 7, 19),
    Sketcher.Constraint("Perpendicular", 5, 20),
    Sketcher.Constraint("Perpendicular", 6, 21),
    Sketcher.Constraint("Parallel", 19, 22),
    Sketcher.Constraint("Perpendicular", 12, 24),
    Sketcher.Constraint("Parallel", 24, 27),
    Sketcher.Constraint("Perpendicular", 22, 34),
    Sketcher.Constraint("Parallel", 34, 37),
    Sketcher.Constraint("Perpendicular", 27, 39),
    Sketcher.Constraint("Parallel", 39, 42),
    Sketcher.Constraint("Perpendicular", 37, 49),
    Sketcher.Constraint("Parallel", 49, 52),
    Sketcher.Constraint("Perpendicular", 42, 54),
    Sketcher.Constraint("Parallel", 54, 57),
    Sketcher.Constraint("Horizontal", 61, 3, 74, 3),
    Sketcher.Constraint("Horizontal", 63, 3, 78, 3),
    Sketcher.Constraint("Horizontal", 66, 3, 80, 3),
    Sketcher.Constraint("Horizontal", 68, 3, 82, 3),
    Sketcher.Constraint("Horizontal", 12, 2, 18, 2),
    Sketcher.Constraint("Vertical", 63, 3, 66, 3),
    Sketcher.Constraint("Vertical", 61, 3, 68, 3),
    Sketcher.Constraint("Equal", 59, 14),
    Sketcher.Constraint("Equal", 1, 5),
    Sketcher.Constraint("Equal", 5, 6),
    Sketcher.Constraint("Equal", 4, 7),
    Sketcher.Constraint("Equal", 7, 9),
    Sketcher.Constraint("Equal", 6, 10),
    Sketcher.Constraint("Equal", 10, 11),
    Sketcher.Constraint("Equal", 9, 12),
    Sketcher.Constraint("Equal", 11, 15),
    Sketcher.Constraint("Radius", 3, Q("0.75 in")),
    Sketcher.Constraint("Diameter", 72, Q("0.625 in")),
    Sketcher.Constraint("Radius", 62, Q("0.4375 in")),
    Sketcher.Constraint("Radius", 64, Q("0.625 in")),
    Sketcher.Constraint("Diameter", 60, Q("0.1181 in")),
    Sketcher.Constraint("DistanceY", -1, 1, 1, 2, Q("0.1 in")),
    Sketcher.Constraint("DistanceX", -1, 1, 60, 3, Q("0.625 in")),
    Sketcher.Constraint("DistanceY", 71, 3, -1, 1, Q("0.625 in")),
    Sketcher.Constraint("Angle", 7, Q("-150 deg")),
    Sketcher.Constraint("DistanceX", -1, 1, 0, 2, Q("0.75 in")),
    Sketcher.Constraint("DistanceX", -1, 1, 61, 3, Q("0.156248 in")),
    Sketcher.Constraint("DistanceY", 63, 3, -1, 1, Q("0.156252 in")),
    Sketcher.Constraint("DistanceY", -1, 1, 5, 2, Q("0.375 in")),
    Sketcher.Constraint("Distance", 4, Q("0.1041 in")),
    Sketcher.Constraint("Distance", 6, Q("0.1396 in")),
    Sketcher.Constraint("DistanceY", -1, 1, 4, 2, Q("0.3371 in")),
    Sketcher.Constraint("DistanceX", -1, 1, 69, 1, 10.8055),
    Sketcher.Constraint("DistanceX", -1, 1, 70, 1, 11.63),
    Sketcher.Constraint("DistanceX", 75, 1, -1, 1, 10.8055),
    Sketcher.Constraint("DistanceX", 76, 1, -1, 1, 11.63),
])
pad1 = body.newObject("PartDesign::Pad", "Pad")
pad1.Profile = sketch1
pad1.Length = 1

doc.recompute()
